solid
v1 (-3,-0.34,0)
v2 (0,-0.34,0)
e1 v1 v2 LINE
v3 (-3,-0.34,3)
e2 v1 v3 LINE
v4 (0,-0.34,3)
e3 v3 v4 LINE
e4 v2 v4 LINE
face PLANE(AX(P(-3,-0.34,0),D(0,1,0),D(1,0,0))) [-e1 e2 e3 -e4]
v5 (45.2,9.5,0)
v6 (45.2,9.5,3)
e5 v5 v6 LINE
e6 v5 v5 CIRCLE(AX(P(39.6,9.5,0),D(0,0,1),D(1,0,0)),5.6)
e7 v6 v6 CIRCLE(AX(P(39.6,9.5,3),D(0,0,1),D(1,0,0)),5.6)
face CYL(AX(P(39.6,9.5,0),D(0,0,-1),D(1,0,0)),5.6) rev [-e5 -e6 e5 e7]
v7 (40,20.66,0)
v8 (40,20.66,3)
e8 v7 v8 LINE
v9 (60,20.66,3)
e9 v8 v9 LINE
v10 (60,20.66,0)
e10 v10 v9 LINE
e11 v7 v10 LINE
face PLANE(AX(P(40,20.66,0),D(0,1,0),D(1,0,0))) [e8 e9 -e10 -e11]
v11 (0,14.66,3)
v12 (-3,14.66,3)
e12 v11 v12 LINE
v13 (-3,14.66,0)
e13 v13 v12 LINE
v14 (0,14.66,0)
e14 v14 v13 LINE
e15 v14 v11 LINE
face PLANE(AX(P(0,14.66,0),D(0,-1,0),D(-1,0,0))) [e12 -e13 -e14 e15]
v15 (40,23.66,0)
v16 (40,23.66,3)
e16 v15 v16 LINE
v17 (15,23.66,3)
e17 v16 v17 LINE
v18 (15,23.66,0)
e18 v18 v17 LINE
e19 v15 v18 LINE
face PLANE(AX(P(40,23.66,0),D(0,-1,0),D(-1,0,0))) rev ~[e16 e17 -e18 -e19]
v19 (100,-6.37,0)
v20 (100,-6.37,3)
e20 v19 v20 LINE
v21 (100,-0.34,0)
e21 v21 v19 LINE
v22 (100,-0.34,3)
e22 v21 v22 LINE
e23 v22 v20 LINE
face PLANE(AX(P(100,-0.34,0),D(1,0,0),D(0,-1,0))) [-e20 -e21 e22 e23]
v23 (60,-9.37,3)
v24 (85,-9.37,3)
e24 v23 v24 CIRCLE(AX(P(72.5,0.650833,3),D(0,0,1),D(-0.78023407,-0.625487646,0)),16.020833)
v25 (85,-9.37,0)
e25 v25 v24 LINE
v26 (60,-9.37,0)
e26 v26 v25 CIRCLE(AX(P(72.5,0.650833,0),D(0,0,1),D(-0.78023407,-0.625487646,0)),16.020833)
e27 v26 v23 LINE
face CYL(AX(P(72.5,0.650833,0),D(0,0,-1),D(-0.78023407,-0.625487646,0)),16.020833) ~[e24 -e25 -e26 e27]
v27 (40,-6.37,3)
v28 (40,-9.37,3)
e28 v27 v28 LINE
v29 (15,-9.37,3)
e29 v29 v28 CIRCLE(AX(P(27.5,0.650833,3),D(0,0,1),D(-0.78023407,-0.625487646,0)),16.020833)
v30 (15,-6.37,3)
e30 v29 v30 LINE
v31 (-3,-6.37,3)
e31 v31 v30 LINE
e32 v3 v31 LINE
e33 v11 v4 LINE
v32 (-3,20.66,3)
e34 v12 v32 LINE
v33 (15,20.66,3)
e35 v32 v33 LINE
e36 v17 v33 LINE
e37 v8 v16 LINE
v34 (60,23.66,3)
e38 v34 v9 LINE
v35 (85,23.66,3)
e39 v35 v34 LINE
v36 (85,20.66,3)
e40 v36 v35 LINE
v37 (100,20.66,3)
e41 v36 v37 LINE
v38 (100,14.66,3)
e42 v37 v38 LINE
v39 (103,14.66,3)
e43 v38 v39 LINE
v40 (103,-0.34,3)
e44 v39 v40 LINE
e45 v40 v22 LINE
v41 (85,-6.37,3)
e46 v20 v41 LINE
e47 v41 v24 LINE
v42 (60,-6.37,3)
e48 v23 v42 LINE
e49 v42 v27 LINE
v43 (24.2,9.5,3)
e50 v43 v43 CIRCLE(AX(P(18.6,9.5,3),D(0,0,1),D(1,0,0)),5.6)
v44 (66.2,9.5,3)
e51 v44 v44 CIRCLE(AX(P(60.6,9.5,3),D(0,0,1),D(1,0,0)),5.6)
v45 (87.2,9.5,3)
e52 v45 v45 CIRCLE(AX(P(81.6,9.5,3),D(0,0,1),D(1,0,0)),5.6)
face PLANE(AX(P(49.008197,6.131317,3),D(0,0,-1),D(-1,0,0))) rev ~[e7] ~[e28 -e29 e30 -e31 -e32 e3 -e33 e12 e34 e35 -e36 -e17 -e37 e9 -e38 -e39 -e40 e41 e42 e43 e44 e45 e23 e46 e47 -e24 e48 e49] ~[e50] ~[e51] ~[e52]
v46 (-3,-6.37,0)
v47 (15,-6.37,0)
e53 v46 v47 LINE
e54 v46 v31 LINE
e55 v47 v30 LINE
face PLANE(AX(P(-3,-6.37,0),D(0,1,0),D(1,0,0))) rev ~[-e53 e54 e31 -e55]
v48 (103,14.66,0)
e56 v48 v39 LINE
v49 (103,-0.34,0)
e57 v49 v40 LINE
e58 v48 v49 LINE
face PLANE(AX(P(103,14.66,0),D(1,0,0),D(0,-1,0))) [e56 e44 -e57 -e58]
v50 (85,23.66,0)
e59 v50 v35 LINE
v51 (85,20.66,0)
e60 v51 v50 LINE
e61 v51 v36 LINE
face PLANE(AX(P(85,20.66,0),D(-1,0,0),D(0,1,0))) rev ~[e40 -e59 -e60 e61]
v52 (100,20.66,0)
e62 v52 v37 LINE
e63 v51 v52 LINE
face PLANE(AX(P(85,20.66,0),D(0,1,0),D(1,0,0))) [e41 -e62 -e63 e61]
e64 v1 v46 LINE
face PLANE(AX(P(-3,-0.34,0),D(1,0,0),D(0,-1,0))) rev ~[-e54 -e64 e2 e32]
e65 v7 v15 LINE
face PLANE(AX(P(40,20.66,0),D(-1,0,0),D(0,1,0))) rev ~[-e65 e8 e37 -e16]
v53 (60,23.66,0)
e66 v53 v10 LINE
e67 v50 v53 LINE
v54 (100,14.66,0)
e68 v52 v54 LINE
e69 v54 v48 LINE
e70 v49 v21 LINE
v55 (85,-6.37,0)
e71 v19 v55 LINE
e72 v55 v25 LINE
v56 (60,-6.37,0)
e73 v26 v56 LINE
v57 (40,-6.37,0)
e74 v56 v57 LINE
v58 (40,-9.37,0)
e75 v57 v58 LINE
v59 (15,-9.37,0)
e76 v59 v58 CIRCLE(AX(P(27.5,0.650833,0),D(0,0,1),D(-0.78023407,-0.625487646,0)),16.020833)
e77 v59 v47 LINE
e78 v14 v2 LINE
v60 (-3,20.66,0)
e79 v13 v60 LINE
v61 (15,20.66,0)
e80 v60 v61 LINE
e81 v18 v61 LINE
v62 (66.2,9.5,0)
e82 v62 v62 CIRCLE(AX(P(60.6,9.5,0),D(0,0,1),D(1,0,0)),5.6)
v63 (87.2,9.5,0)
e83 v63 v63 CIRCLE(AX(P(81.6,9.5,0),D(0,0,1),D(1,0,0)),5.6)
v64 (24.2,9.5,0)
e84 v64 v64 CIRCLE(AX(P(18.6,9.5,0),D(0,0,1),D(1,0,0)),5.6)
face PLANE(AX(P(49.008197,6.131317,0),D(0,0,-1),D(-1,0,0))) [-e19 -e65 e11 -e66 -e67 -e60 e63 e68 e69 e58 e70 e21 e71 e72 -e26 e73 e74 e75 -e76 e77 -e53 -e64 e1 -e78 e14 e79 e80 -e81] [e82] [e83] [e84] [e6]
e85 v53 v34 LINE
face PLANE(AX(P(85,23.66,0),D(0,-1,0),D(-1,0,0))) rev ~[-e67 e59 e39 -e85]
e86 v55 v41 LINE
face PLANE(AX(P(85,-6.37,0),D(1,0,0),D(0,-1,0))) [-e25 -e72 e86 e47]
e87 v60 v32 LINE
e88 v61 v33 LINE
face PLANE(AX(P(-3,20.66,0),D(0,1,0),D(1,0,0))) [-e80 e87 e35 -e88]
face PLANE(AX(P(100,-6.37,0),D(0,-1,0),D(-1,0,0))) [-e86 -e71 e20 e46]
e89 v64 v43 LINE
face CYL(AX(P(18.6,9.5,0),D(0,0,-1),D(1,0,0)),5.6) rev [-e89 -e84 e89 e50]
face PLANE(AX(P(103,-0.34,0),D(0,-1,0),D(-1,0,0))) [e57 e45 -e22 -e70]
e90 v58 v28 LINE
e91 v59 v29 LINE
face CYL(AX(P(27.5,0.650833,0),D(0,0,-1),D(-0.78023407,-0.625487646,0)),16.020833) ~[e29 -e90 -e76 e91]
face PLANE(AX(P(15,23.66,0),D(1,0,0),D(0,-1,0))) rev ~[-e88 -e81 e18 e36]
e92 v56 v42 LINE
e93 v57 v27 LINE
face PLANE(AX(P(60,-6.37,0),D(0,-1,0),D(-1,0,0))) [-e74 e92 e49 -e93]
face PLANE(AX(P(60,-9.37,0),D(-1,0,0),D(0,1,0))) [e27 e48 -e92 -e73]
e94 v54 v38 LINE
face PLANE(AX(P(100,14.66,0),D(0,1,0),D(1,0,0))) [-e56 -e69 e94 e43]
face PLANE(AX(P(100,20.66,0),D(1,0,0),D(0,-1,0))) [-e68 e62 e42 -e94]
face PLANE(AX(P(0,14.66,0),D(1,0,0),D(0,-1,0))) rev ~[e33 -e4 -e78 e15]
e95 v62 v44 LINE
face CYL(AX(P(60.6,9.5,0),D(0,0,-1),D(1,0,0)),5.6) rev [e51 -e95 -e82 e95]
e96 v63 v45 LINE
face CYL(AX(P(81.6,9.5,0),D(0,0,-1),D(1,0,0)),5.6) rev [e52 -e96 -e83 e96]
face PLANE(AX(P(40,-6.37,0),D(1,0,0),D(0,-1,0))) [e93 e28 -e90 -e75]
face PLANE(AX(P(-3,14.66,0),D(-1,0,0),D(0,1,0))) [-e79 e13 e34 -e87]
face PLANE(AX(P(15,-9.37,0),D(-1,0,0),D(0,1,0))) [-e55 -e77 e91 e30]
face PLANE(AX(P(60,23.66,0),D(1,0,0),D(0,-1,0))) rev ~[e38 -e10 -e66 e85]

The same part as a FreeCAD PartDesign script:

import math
import FreeCAD as App
import Part
import Sketcher
Q = App.Units.Quantity

doc = App.newDocument("Part")
body = doc.addObject("PartDesign::Body", "Body")

# Sketch on XY plane
sketch1 = body.newObject("Sketcher::SketchObject", "Sketch")
sketch1.AttachmentSupport = (doc.getObject("XY_Plane"), [""])
sketch1.MapMode = "FlatFace"
sketch1.addGeometry([
    Part.LineSegment(App.Vector(40, -9.4, 0), App.Vector(40, -6.4, 0)),  # 0
    Part.LineSegment(App.Vector(40, -6.4, 0), App.Vector(60, -6.4, 0)),  # 1
    Part.LineSegment(App.Vector(60, -6.4, 0), App.Vector(60, -9.4, 0)),  # 2
    Part.ArcOfCircle(Part.Circle(App.Vector(72.5, 0.7, 0), App.Vector(0, 0, 1), 16), math.radians(-141), math.radians(-39)),  # 3
    Part.LineSegment(App.Vector(85, -9.4, 0), App.Vector(85, -6.4, 0)),  # 4
    Part.LineSegment(App.Vector(85, -6.4, 0), App.Vector(100, -6.4, 0)),  # 5
    Part.LineSegment(App.Vector(100, -6.4, 0), App.Vector(100, -0.3, 0)),  # 6
    Part.LineSegment(App.Vector(100, -0.3, 0), App.Vector(103, -0.3, 0)),  # 7
    Part.LineSegment(App.Vector(103, -0.3, 0), App.Vector(103, 14.7, 0)),  # 8
    Part.LineSegment(App.Vector(103, 14.7, 0), App.Vector(100, 14.7, 0)),  # 9
    Part.LineSegment(App.Vector(100, 14.7, 0), App.Vector(100, 20.7, 0)),  # 10
    Part.LineSegment(App.Vector(100, 20.7, 0), App.Vector(85, 20.7, 0)),  # 11
    Part.LineSegment(App.Vector(85, 20.7, 0), App.Vector(85, 23.7, 0)),  # 12
    Part.LineSegment(App.Vector(85, 23.7, 0), App.Vector(60, 23.7, 0)),  # 13
    Part.LineSegment(App.Vector(60, 23.7, 0), App.Vector(60, 20.7, 0)),  # 14
    Part.LineSegment(App.Vector(60, 20.7, 0), App.Vector(40, 20.7, 0)),  # 15
    Part.LineSegment(App.Vector(40, 20.7, 0), App.Vector(40, 23.7, 0)),  # 16
    Part.LineSegment(App.Vector(40, 23.7, 0), App.Vector(15, 23.7, 0)),  # 17
    Part.LineSegment(App.Vector(15, 23.7, 0), App.Vector(15, 20.7, 0)),  # 18
    Part.LineSegment(App.Vector(15, 20.7, 0), App.Vector(-3, 20.7, 0)),  # 19
    Part.LineSegment(App.Vector(-3, 20.7, 0), App.Vector(-3, 14.7, 0)),  # 20
    Part.LineSegment(App.Vector(-3, 14.7, 0), App.Vector(0, 14.7, 0)),  # 21
    Part.LineSegment(App.Vector(0, 14.7, 0), App.Vector(0, -0.3, 0)),  # 22
    Part.LineSegment(App.Vector(0, -0.3, 0), App.Vector(-3, -0.3, 0)),  # 23
    Part.LineSegment(App.Vector(-3, -0.3, 0), App.Vector(-3, -6.4, 0)),  # 24
    Part.LineSegment(App.Vector(-3, -6.4, 0), App.Vector(15, -6.4, 0)),  # 25
    Part.LineSegment(App.Vector(15, -6.4, 0), App.Vector(15, -9.4, 0)),  # 26
    Part.ArcOfCircle(Part.Circle(App.Vector(27.5, 0.7, 0), App.Vector(0, 0, 1), 16), math.radians(-141), math.radians(-39)),  # 27
    Part.Circle(App.Vector(81.6, 9.5, 0), App.Vector(0, 0, 1), 5.6),  # 28
    Part.Circle(App.Vector(60.6, 9.5, 0), App.Vector(0, 0, 1), 5.6),  # 29
    Part.Circle(App.Vector(39.6, 9.5, 0), App.Vector(0, 0, 1), 5.6),  # 30
    Part.Circle(App.Vector(18.6, 9.5, 0), App.Vector(0, 0, 1), 5.6),  # 31
], False)
sketch1.addConstraint([
    Sketcher.Constraint("Coincident", 0, 2, 1, 1),
    Sketcher.Constraint("Coincident", 1, 2, 2, 1),
    Sketcher.Constraint("Coincident", 2, 2, 3, 1),
    Sketcher.Constraint("Coincident", 3, 2, 4, 1),
    Sketcher.Constraint("Coincident", 4, 2, 5, 1),
    Sketcher.Constraint("Coincident", 5, 2, 6, 1),
    Sketcher.Constraint("Coincident", 6, 2, 7, 1),
    Sketcher.Constraint("Coincident", 7, 2, 8, 1),
    Sketcher.Constraint("Coincident", 8, 2, 9, 1),
    Sketcher.Constraint("Coincident", 9, 2, 10, 1),
    Sketcher.Constraint("Coincident", 10, 2, 11, 1),
    Sketcher.Constraint("Coincident", 11, 2, 12, 1),
    Sketcher.Constraint("Coincident", 12, 2, 13, 1),
    Sketcher.Constraint("Coincident", 13, 2, 14, 1),
    Sketcher.Constraint("Coincident", 14, 2, 15, 1),
    Sketcher.Constraint("Coincident", 15, 2, 16, 1),
    Sketcher.Constraint("Coincident", 16, 2, 17, 1),
    Sketcher.Constraint("Coincident", 17, 2, 18, 1),
    Sketcher.Constraint("Coincident", 18, 2, 19, 1),
    Sketcher.Constraint("Coincident", 19, 2, 20, 1),
    Sketcher.Constraint("Coincident", 20, 2, 21, 1),
    Sketcher.Constraint("Coincident", 21, 2, 22, 1),
    Sketcher.Constraint("Coincident", 22, 2, 23, 1),
    Sketcher.Constraint("Coincident", 23, 2, 24, 1),
    Sketcher.Constraint("Coincident", 24, 2, 25, 1),
    Sketcher.Constraint("Coincident", 25, 2, 26, 1),
    Sketcher.Constraint("Coincident", 26, 2, 27, 1),
    Sketcher.Constraint("Coincident", 27, 2, 0, 1),
    Sketcher.Constraint("Vertical", 0),
    Sketcher.Constraint("Horizontal", 1),
    Sketcher.Constraint("Vertical", 2),
    Sketcher.Constraint("Vertical", 4),
    Sketcher.Constraint("Horizontal", 5),
    Sketcher.Constraint("Vertical", 6),
    Sketcher.Constraint("Horizontal", 7),
    Sketcher.Constraint("Vertical", 8),
    Sketcher.Constraint("Horizontal", 9),
    Sketcher.Constraint("Vertical", 10),
    Sketcher.Constraint("Horizontal", 11),
    Sketcher.Constraint("Vertical", 12),
    Sketcher.Constraint("Horizontal", 13),
    Sketcher.Constraint("Vertical", 14),
    Sketcher.Constraint("Horizontal", 15),
    Sketcher.Constraint("Vertical", 16),
    Sketcher.Constraint("Horizontal", 17),
    Sketcher.Constraint("Vertical", 18),
    Sketcher.Constraint("Horizontal", 19),
    Sketcher.Constraint("Vertical", 20),
    Sketcher.Constraint("Horizontal", 21),
    Sketcher.Constraint("Vertical", 22),
    Sketcher.Constraint("Horizontal", 23),
    Sketcher.Constraint("Vertical", 24),
    Sketcher.Constraint("Horizontal", 25),
    Sketcher.Constraint("Vertical", 26),
    Sketcher.Constraint("Equal", 3, 27),
    Sketcher.Constraint("Equal", 28, 29),
    Sketcher.Constraint("Equal", 29, 30),
    Sketcher.Constraint("Equal", 30, 31),
    Sketcher.Constraint("PointOnObject", 21, 2, -2),
    Sketcher.Constraint("Horizontal", 3, 3, 27, 3),
    Sketcher.Constraint("Horizontal", 28, 3, 29, 3),
    Sketcher.Constraint("Horizontal", 29, 3, 30, 3),
    Sketcher.Constraint("Horizontal", 30, 3, 31, 3),
    Sketcher.Constraint("Horizontal", 2, 2, 3, 2),
    Sketcher.Constraint("Horizontal", 1, 2, 4, 2),
    Sketcher.Constraint("Horizontal", 11, 2, 14, 2),
    Sketcher.Constraint("Horizontal", 13, 2, 16, 2),
    Sketcher.Constraint("Horizontal", 15, 2, 18, 2),
    Sketcher.Constraint("Horizontal", 9, 2, 20, 2),
    Sketcher.Constraint("Horizontal", 7, 2, 22, 2),
    Sketcher.Constraint("Horizontal", 5, 2, 24, 2),
    Sketcher.Constraint("Horizontal", 3, 2, 26, 2),
    Sketcher.Constraint("Horizontal", 26, 2, 27, 2),
    Sketcher.Constraint("Vertical", 6, 2, 9, 2),
    Sketcher.Constraint("Vertical", 4, 2, 11, 2),
    Sketcher.Constraint("Vertical", 2, 2, 13, 2),
    Sketcher.Constraint("Vertical", 0, 2, 15, 2),
    Sketcher.Constraint("Vertical", 20, 2, 23, 2),
    Sketcher.Constraint("Vertical", 18, 2, 25, 2),
    Sketcher.Constraint("Equal", 9, 21),
    Sketcher.Constraint("Equal", 23, 0),
    Sketcher.Constraint("Equal", 11, 8),
    Sketcher.Constraint("Equal", 4, 12),
    Sketcher.Constraint("Diameter", 28, Q("11.2 mm")),
    Sketcher.Constraint("DistanceX", 1, 1, 1, 2, Q("20 mm")),
    Sketcher.Constraint("DistanceX", 5, 1, 5, 2, Q("15 mm")),
    Sketcher.Constraint("DistanceX", 7, 1, 7, 2, Q("3 mm")),
    Sketcher.Constraint("DistanceX", 13, 2, 13, 1, Q("25 mm")),
    Sketcher.Constraint("DistanceX", 19, 2, 19, 1, Q("18 mm")),
    Sketcher.Constraint("DistanceY", 10, 1, 10, 2, Q("6 mm")),
    Sketcher.Constraint("DistanceX", 29, 3, 28, 3, Q("21 mm")),
    Sketcher.Constraint("DistanceX", 30, 3, 29, 3, Q("21 mm")),
    Sketcher.Constraint("DistanceX", 31, 3, 30, 3, Q("21 mm")),
    Sketcher.Constraint("DistanceY", 6, 1, 6, 2, Q("6.03 mm")),
    Sketcher.Constraint("DistanceX", -1, 1, 28, 3, Q("81.6 mm")),
    Sketcher.Constraint("DistanceY", -1, 1, 28, 3, Q("9.5 mm")),
    Sketcher.Constraint("DistanceY", 0, 2, -1, 1, Q("6.37 mm")),
    Sketcher.Constraint("Radius", 3, Q("16.020833 mm")),
])
pad1 = body.newObject("PartDesign::Pad", "Pad")
pad1.Profile = sketch1
pad1.Length = 3

doc.recompute()
